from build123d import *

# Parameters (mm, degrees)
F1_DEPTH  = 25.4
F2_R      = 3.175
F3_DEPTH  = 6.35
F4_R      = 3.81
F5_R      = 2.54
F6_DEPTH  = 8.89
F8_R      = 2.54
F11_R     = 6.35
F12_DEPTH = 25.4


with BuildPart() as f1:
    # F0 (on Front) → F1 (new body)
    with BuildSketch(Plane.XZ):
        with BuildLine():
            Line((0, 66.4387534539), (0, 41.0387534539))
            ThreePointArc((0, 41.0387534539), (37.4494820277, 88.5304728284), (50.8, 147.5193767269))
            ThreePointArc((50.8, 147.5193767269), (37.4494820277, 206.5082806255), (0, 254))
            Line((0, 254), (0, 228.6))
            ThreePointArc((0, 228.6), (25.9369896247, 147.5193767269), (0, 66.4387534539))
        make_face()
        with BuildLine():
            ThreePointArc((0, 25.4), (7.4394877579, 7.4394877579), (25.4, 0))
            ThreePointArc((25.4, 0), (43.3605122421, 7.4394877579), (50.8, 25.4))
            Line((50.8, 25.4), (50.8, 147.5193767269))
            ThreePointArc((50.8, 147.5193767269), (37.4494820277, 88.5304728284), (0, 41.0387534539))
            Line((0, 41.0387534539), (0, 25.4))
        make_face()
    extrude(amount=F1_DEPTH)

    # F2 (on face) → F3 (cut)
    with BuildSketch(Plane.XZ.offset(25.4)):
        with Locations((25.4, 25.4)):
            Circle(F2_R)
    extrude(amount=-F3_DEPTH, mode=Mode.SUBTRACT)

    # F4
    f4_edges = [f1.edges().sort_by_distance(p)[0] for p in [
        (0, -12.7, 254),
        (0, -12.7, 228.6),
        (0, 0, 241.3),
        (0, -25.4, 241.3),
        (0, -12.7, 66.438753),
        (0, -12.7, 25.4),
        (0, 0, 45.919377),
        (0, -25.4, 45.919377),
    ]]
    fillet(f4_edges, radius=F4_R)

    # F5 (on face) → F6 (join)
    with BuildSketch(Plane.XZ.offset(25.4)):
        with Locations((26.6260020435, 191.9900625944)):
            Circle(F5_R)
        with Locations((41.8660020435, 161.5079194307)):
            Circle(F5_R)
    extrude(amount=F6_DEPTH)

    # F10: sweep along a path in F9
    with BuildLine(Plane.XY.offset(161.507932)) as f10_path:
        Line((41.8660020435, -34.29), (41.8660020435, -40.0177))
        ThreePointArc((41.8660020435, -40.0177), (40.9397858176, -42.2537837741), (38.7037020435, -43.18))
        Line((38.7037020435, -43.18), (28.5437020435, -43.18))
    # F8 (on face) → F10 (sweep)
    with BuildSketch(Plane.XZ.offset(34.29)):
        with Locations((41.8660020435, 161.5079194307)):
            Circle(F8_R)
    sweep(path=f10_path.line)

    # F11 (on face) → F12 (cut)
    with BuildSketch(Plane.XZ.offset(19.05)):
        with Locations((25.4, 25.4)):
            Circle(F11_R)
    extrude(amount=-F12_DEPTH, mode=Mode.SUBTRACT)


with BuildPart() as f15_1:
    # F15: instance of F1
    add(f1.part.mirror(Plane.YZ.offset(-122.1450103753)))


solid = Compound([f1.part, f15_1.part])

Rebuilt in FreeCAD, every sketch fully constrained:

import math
import FreeCAD as App
import Part
import Sketcher

V = App.Vector
Q = App.Units.Quantity


def edges_at(feature, points):
    """Names of the edges that pass closest to the given points."""
    edges = feature.Shape.Edges
    near = lambda p: min(range(len(edges)), key=lambda i: edges[i].distToShape(Part.Vertex(*p))[0])
    return sorted({f"Edge{near(p) + 1}" for p in points})

doc = App.newDocument("Part")
body = doc.addObject("PartDesign::Body", "Body")

# Sketch on XZ plane
sketch1 = body.newObject("Sketcher::SketchObject", "Sketch")
sketch1.AttachmentSupport = (doc.getObject("XZ_Plane"), [""])
sketch1.MapMode = "FlatFace"
sketch1.addGeometry([
    Part.LineSegment(V(0, 66, 0), V(0, 25, 0)),  # 0
    Part.ArcOfCircle(Part.Circle(V(25, 25, 0), V(0, 0, 1), 25), math.radians(180), math.radians(270)),  # 1
    Part.ArcOfCircle(Part.Circle(V(25, 25, 0), V(0, 0, 1), 25), math.radians(-90), math.radians(0)),  # 2
    Part.LineSegment(V(51, 25, 0), V(51, 148, 0)),  # 3
    Part.ArcOfCircle(Part.Circle(V(-86, 148, 0), V(0, 0, 1), 137), math.radians(0), math.radians(51)),  # 4
    Part.LineSegment(V(0, 254, 0), V(0, 229, 0)),  # 5
    Part.ArcOfCircle(Part.Circle(V(-114, 148, 0), V(0, 0, 1), 140), math.radians(-35), math.radians(35)),  # 6
], False)
sketch1.addConstraint([
    Sketcher.Constraint("Tangent", 0, 2, 1, 1),
    Sketcher.Constraint("Tangent", 1, 2, 2, 1),
    Sketcher.Constraint("Tangent", 2, 2, 3, 1),
    Sketcher.Constraint("Tangent", 3, 2, 4, 1),
    Sketcher.Constraint("Coincident", 4, 2, 5, 1),
    Sketcher.Constraint("Coincident", 5, 2, 6, 2),
    Sketcher.Constraint("Coincident", 6, 1, 0, 1),
    Sketcher.Constraint("Vertical", 0),
    Sketcher.Constraint("Vertical", 3),
    Sketcher.Constraint("Vertical", 5),
    Sketcher.Constraint("Equal", 1, 2),
    Sketcher.Constraint("PointOnObject", 0, 2, -2),
    Sketcher.Constraint("PointOnObject", 1, 2, -1),
    Sketcher.Constraint("PointOnObject", 4, 2, -2),
    Sketcher.Constraint("Horizontal", 4, 3, 6, 3),
    Sketcher.Constraint("Vertical", 2, 3, 1, 2),
    Sketcher.Constraint("Radius", 1, Q("1 in")),
    Sketcher.Constraint("Radius", 6, Q("5.5 in")),
    Sketcher.Constraint("DistanceY", 5, 2, 5, 1, Q("1 in")),
    Sketcher.Constraint("DistanceY", -1, 1, 4, 2, Q("10 in")),
    Sketcher.Constraint("Radius", 4, Q("136.9957 mm")),
])
pad1 = body.newObject("PartDesign::Pad", "Pad")
pad1.Profile = sketch1
pad1.Length = Q("1 in")

# Sketch on XZ plane
sketch2 = body.newObject("Sketcher::SketchObject", "Sketch001")
sketch2.AttachmentSupport = (doc.getObject("XZ_Plane"), [""])
sketch2.MapMode = "FlatFace"
sketch2.AttachmentOffset = App.Placement(V(0, 0, 1 * 25.4), App.Rotation())
sketch2.addGeometry(Part.Circle(V(25.4, 25.4, 0), V(0, 0, 1), 3.2), False)
sketch2.addConstraint([
    Sketcher.Constraint("Diameter", 0, Q("0.25 in")),
    Sketcher.Constraint("DistanceX", -1, 1, 0, 3, Q("1 in")),
    Sketcher.Constraint("DistanceY", -1, 1, 0, 3, Q("1 in")),
])
pocket1 = body.newObject("PartDesign::Pocket", "Pocket")
pocket1.Profile = sketch2
pocket1.Length = Q("0.25 in")
doc.recompute()

fillet = body.newObject("PartDesign::Fillet", "Fillet")
fillet.Base = (pocket1, edges_at(pocket1, [
    (0, -12.7, 254),
    (0, -12.7, 228.6),
    (0, 0, 241.3),
    (0, -25.4, 241.3),
    (0, -12.7, 66.439),
    (0, -12.7, 25.4),
    (0, 0, 45.919),
    (0, -25.4, 45.919),
]))
fillet.Radius = Q("0.15 in")

# Sketch on XZ plane
sketch3 = body.newObject("Sketcher::SketchObject", "Sketch002")
sketch3.AttachmentSupport = (doc.getObject("XZ_Plane"), [""])
sketch3.MapMode = "FlatFace"
sketch3.AttachmentOffset = App.Placement(V(0, 0, 1 * 25.4), App.Rotation())
sketch3.addGeometry([
    Part.Circle(V(26.6, 192, 0), V(0, 0, 1), 2.5),
    Part.Circle(V(41.9, 161.5, 0), V(0, 0, 1), 2.5),
], False)
sketch3.addConstraint([
    Sketcher.Constraint("Equal", 0, 1),
    Sketcher.Constraint("Diameter", 0, Q("0.2 in")),
    Sketcher.Constraint("DistanceX", 0, 3, 1, 3, Q("0.6 in")),
    Sketcher.Constraint("DistanceY", -1, 1, 1, 3, Q("161.507919 mm")),
    Sketcher.Constraint("DistanceX", -1, 1, 0, 3, Q("26.626002 mm")),
    Sketcher.Constraint("DistanceY", -1, 1, 0, 3, Q("191.990063 mm")),
])
pad2 = body.newObject("PartDesign::Pad", "Pad001")
pad2.Profile = sketch3
pad2.Length = Q("0.35 in")

# Sketch on XZ plane
sketch4 = body.newObject("Sketcher::SketchObject", "Sketch003")
sketch4.AttachmentSupport = (doc.getObject("XZ_Plane"), [""])
sketch4.MapMode = "FlatFace"
sketch4.AttachmentOffset = App.Placement(V(0, 0, 1.35 * 25.4), App.Rotation())
sketch4.addGeometry(Part.Circle(V(41.9, 161.5, 0), V(0, 0, 1), 2.5), False)
sketch4.addConstraint([
    Sketcher.Constraint("Diameter", 0, Q("0.2 in")),
    Sketcher.Constraint("DistanceY", -1, 1, 0, 3, Q("161.507919 mm")),
    Sketcher.Constraint("DistanceX", -1, 1, 0, 3, Q("41.866002 mm")),
])

# Sketch on XY plane
sketch5 = body.newObject("Sketcher::SketchObject", "Sketch004")
sketch5.AttachmentSupport = (doc.getObject("XY_Plane"), [""])
sketch5.MapMode = "FlatFace"
sketch5.AttachmentOffset = App.Placement(V(0, 0, 161.507932), App.Rotation())
sketch5.addGeometry([
    Part.LineSegment(V(41.9, -34.3, 0), V(41.9, -40, 0)),
    Part.ArcOfCircle(Part.Circle(V(38.7, -40, 0), V(0, 0, 1), 3.2), math.radians(-90), math.radians(0)),
    Part.LineSegment(V(38.7, -43.2, 0), V(28.5, -43.2, 0)),
], False)
sketch5.addConstraint([
    Sketcher.Constraint("Tangent", 0, 2, 1, 2),
    Sketcher.Constraint("Tangent", 1, 1, 2, 1),
    Sketcher.Constraint("Vertical", 0),
    Sketcher.Constraint("Horizontal", 2),
    Sketcher.Constraint("DistanceX", 2, 2, 2, 1, Q("0.4 in")),
    Sketcher.Constraint("DistanceY", 1, 1, -1, 1, Q("1.7 in")),
    Sketcher.Constraint("Radius", 1, Q("0.1245 in")),
    Sketcher.Constraint("DistanceY", 0, 1, -1, 1, Q("1.35 in")),
    Sketcher.Constraint("DistanceX", -1, 1, 1, 3, Q("38.703702 mm")),
])
doc.recompute()

additivepipe = body.newObject("PartDesign::AdditivePipe", "AdditivePipe")
additivepipe.Profile = sketch4
additivepipe.Spine = (sketch5, ["Edge1", "Edge2", "Edge3"])

# Sketch on XZ plane
sketch6 = body.newObject("Sketcher::SketchObject", "Sketch005")
sketch6.AttachmentSupport = (doc.getObject("XZ_Plane"), [""])
sketch6.MapMode = "FlatFace"
sketch6.AttachmentOffset = App.Placement(V(0, 0, 0.75 * 25.4), App.Rotation())
sketch6.addGeometry(Part.Circle(V(25, 25, 0), V(0, 0, 1), 6), False)
sketch6.addConstraint([
    Sketcher.Constraint("Diameter", 0, Q("0.5 in")),
    Sketcher.Constraint("DistanceX", -1, 1, 0, 3, Q("1 in")),
    Sketcher.Constraint("DistanceY", -1, 1, 0, 3, Q("1 in")),
])
pocket2 = body.newObject("PartDesign::Pocket", "Pocket001")
pocket2.Profile = sketch6
pocket2.Length = Q("1 in")
body2 = doc.addObject("PartDesign::Body", "Body001")
doc.recompute()

mirroring = doc.addObject("Part::Mirroring", "Mirroring")
mirroring.Source = body
mirroring.Base = V(-122.14501, 0, 0)
mirroring.Normal = V(1, 0, 0)
body2.BaseFeature = mirroring
doc.recompute()
mirroring.Visibility = False

doc.recompute()
